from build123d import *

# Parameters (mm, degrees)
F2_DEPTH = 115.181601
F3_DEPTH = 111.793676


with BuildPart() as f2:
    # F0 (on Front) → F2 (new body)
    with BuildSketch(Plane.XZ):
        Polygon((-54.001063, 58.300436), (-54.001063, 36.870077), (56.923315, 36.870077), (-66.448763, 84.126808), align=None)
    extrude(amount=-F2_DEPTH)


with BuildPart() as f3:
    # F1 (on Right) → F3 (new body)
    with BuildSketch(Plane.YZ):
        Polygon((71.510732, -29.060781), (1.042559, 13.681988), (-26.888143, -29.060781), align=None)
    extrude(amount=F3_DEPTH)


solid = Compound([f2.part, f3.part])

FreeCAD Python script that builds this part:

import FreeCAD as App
import Part
import Sketcher
from FreeCAD import Vector
Q = App.Units.Quantity


def add_polygon(sketch, points):
    """Adds a closed chain of lines whose ends are joined by coincident constraints."""
    first, n = sketch.GeometryCount, len(points)
    for a, b in zip(points, points[1:] + points[:1]):
        sketch.addGeometry(Part.LineSegment(App.Vector(*a, 0), App.Vector(*b, 0)), False)
    for i in range(n):
        sketch.addConstraint(Sketcher.Constraint("Coincident", first + i, 2, first + (i + 1) % n, 1))

doc = App.newDocument("Part")
body = doc.addObject("PartDesign::Body", "Body")

sketch1 = doc.addObject("Sketcher::SketchObject", "Sketch")
body.addObject(sketch1)
sketch1.AttachmentSupport = (doc.XZ_Plane, [""])
sketch1.MapMode = "FlatFace"
add_polygon(sketch1, [(-54, 58), (-54, 37), (57, 37), (-66, 84)])
sketch1.addConstraint([
    Sketcher.Constraint("Vertical", 0),
    Sketcher.Constraint("Horizontal", 1),
    Sketcher.Constraint("DistanceX", 1, 1, 1, 2, Q("110.924378 mm")),
    Sketcher.Constraint("DistanceY", 0, 2, 0, 1, Q("21.430359 mm")),
    Sketcher.Constraint("DistanceX", 2, 2, 0, 2, Q("12.4477 mm")),
    Sketcher.Constraint("Distance", 2, Q("132.113089 mm")),
    Sketcher.Constraint("DistanceX", 0, 2, -1, 1, Q("54.001063 mm")),
    Sketcher.Constraint("DistanceY", -1, 1, 0, 2, Q("36.870077 mm")),
])
pad1 = doc.addObject("PartDesign::Pad", "Pad")
body.addObject(pad1)
pad1.Profile = sketch1
pad1.Length = 115.181601
pad1.Reversed = True
body2 = doc.addObject("PartDesign::Body", "Body001")

sketch2 = doc.addObject("Sketcher::SketchObject", "Sketch001")
body2.addObject(sketch2)
sketch2.AttachmentSupport = (doc.getObject("YZ_Plane001"), [""])
sketch2.MapMode = "FlatFace"
add_polygon(sketch2, [(72, -29), (1, 14), (-27, -29)])
sketch2.addConstraint([
    Sketcher.Constraint("Horizontal", 2),
    Sketcher.Constraint("DistanceX", 1, 2, 0, 2, Q("27.930702 mm")),
    Sketcher.Constraint("Distance", 1, Q("51.05946 mm")),
    Sketcher.Constraint("DistanceX", 2, 1, 2, 2, Q("98.398875 mm")),
    Sketcher.Constraint("DistanceX", -1, 1, 0, 2, Q("1.042559 mm")),
    Sketcher.Constraint("DistanceY", 1, 2, -1, 1, Q("29.060781 mm")),
])
pad2 = doc.addObject("PartDesign::Pad", "Pad001")
body2.addObject(pad2)
pad2.Profile = sketch2
pad2.Length = 111.793676

doc.recompute()
